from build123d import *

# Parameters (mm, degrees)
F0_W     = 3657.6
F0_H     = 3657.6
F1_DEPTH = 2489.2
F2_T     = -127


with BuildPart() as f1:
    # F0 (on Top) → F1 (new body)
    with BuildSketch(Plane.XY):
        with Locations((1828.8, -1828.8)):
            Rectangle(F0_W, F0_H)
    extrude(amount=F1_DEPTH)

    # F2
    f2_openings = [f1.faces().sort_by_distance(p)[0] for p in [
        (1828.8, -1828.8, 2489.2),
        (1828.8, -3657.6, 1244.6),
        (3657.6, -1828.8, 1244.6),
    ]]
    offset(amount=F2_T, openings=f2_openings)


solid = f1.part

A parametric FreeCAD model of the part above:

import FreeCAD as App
import Part
import Sketcher

V = App.Vector
Q = App.Units.Quantity


def faces_at(feature, points):
    """Names of the faces that lie closest to the given points."""
    faces = feature.Shape.Faces
    near = lambda p: min(range(len(faces)), key=lambda i: faces[i].distToShape(Part.Vertex(*p))[0])
    return sorted({f"Face{near(p) + 1}" for p in points})

doc = App.newDocument("Part")
body = doc.addObject("PartDesign::Body", "Body")

# Sketch on XY plane
sketch1 = body.newObject("Sketcher::SketchObject", "Sketch")
sketch1.AttachmentSupport = (doc.getObject("XY_Plane"), [""])
sketch1.MapMode = "FlatFace"
sketch1.addGeometry([
    Part.LineSegment(V(0, 0, 0), V(0, -3657.6, 0)),
    Part.LineSegment(V(0, -3657.6, 0), V(3657.6, -3657.6, 0)),
    Part.LineSegment(V(3657.6, -3657.6, 0), V(3657.6, 0, 0)),
    Part.LineSegment(V(3657.6, 0, 0), V(0, 0, 0)),
], False)
sketch1.addConstraint([
    Sketcher.Constraint("Coincident", 0, 2, 1, 1),
    Sketcher.Constraint("Coincident", 1, 2, 2, 1),
    Sketcher.Constraint("Coincident", 2, 2, 3, 1),
    Sketcher.Constraint("Coincident", 3, 2, 0, 1),
    Sketcher.Constraint("Vertical", 0),
    Sketcher.Constraint("Horizontal", 1),
    Sketcher.Constraint("Vertical", 2),
    Sketcher.Constraint("Horizontal", 3),
    Sketcher.Constraint("Coincident", 3, 2, -1, 1),
    Sketcher.Constraint("Equal", 3, 0),
    Sketcher.Constraint("DistanceX", 1, 1, 1, 2, Q("144 in")),
])
pad1 = body.newObject("PartDesign::Pad", "Pad")
pad1.Profile = sketch1
pad1.Length = Q("98 in")
doc.recompute()

thickness = body.newObject("PartDesign::Thickness", "Thickness")
thickness.Base = (pad1, faces_at(pad1, [(1828.8, -1828.8, 2489.2), (1828.8, -3657.6, 1244.6), (3657.6, -1828.8, 1244.6)]))
thickness.Value = Q("5 in")
thickness.Reversed = True
thickness.Join = "Arc"

doc.recompute()
